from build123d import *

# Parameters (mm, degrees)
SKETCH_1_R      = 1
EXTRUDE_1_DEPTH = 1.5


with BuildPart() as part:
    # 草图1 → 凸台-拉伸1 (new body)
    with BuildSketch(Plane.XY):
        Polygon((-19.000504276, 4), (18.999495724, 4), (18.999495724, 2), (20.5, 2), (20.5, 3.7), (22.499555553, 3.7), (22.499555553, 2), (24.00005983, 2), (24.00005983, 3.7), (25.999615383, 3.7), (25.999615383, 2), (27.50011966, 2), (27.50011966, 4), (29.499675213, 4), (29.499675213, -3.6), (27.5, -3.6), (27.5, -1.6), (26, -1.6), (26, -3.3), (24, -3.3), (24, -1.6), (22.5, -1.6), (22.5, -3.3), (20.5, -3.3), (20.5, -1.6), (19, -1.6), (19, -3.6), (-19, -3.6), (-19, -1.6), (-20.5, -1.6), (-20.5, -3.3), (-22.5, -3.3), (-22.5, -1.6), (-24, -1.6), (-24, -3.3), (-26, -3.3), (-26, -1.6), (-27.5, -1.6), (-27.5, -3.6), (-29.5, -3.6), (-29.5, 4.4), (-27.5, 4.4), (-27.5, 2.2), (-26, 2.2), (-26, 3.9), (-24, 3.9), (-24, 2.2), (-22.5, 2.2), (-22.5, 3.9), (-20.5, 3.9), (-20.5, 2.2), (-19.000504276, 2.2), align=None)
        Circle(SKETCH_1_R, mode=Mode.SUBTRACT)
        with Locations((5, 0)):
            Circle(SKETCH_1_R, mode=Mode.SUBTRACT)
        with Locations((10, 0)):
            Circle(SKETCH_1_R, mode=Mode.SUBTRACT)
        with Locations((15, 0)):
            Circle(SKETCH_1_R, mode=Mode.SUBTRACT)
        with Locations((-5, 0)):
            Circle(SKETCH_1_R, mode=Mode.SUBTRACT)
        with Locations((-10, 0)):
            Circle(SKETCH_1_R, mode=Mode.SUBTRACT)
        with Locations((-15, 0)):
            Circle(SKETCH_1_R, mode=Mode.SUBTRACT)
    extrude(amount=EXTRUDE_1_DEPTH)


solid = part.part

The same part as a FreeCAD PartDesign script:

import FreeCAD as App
import Part
import Sketcher
from FreeCAD import Vector
Q = App.Units.Quantity

doc = App.newDocument("Part")
body = doc.addObject("PartDesign::Body", "Body")

sketch1 = doc.addObject("Sketcher::SketchObject", "Sketch")
body.addObject(sketch1)
sketch1.AttachmentSupport = (doc.XY_Plane, [""])
sketch1.MapMode = "FlatFace"
sketch1.addGeometry(Part.LineSegment(Vector(19, 4, 0), Vector(-19, 4, 0)), False)
sketch1.addGeometry(Part.LineSegment(Vector(-19, 4, 0), Vector(-19, 2.2, 0)), False)
sketch1.addGeometry(Part.LineSegment(Vector(-19, 2.2, 0), Vector(-20.5, 2.2, 0)), False)
sketch1.addGeometry(Part.LineSegment(Vector(-20.5, 2.2, 0), Vector(-20.5, 3.9, 0)), False)
sketch1.addGeometry(Part.LineSegment(Vector(-20.5, 3.9, 0), Vector(-22.5, 3.9, 0)), False)
sketch1.addGeometry(Part.LineSegment(Vector(-22.5, 3.9, 0), Vector(-22.5, 2.2, 0)), False)
sketch1.addGeometry(Part.LineSegment(Vector(-22.5, 2.2, 0), Vector(-24, 2.2, 0)), False)
sketch1.addGeometry(Part.LineSegment(Vector(-24, 2.2, 0), Vector(-24, 3.9, 0)), False)
sketch1.addGeometry(Part.LineSegment(Vector(-24, 3.9, 0), Vector(-26, 3.9, 0)), False)
sketch1.addGeometry(Part.LineSegment(Vector(-26, 3.9, 0), Vector(-26, 2.2, 0)), False)
sketch1.addGeometry(Part.LineSegment(Vector(-26, 2.2, 0), Vector(-27.5, 2.2, 0)), False)
sketch1.addGeometry(Part.LineSegment(Vector(-27.5, 2.2, 0), Vector(-27.5, 4.4, 0)), False)
sketch1.addGeometry(Part.LineSegment(Vector(-27.5, 4.4, 0), Vector(-29.5, 4.4, 0)), False)
sketch1.addGeometry(Part.LineSegment(Vector(-29.5, 4.4, 0), Vector(-29.5, -3.6, 0)), False)
sketch1.addGeometry(Part.LineSegment(Vector(-29.5, -3.6, 0), Vector(-27.5, -3.6, 0)), False)
sketch1.addGeometry(Part.LineSegment(Vector(-27.5, -3.6, 0), Vector(-27.5, -1.6, 0)), False)
sketch1.addGeometry(Part.LineSegment(Vector(-27.5, -1.6, 0), Vector(-26, -1.6, 0)), False)
sketch1.addGeometry(Part.LineSegment(Vector(-26, -1.6, 0), Vector(-26, -3.3, 0)), False)
sketch1.addGeometry(Part.LineSegment(Vector(-26, -3.3, 0), Vector(-24, -3.3, 0)), False)
sketch1.addGeometry(Part.LineSegment(Vector(-24, -3.3, 0), Vector(-24, -1.6, 0)), False)
sketch1.addGeometry(Part.LineSegment(Vector(-24, -1.6, 0), Vector(-22.5, -1.6, 0)), False)
sketch1.addGeometry(Part.LineSegment(Vector(-22.5, -1.6, 0), Vector(-22.5, -3.3, 0)), False)
sketch1.addGeometry(Part.LineSegment(Vector(-22.5, -3.3, 0), Vector(-20.5, -3.3, 0)), False)
sketch1.addGeometry(Part.LineSegment(Vector(-20.5, -3.3, 0), Vector(-20.5, -1.6, 0)), False)
sketch1.addGeometry(Part.LineSegment(Vector(-20.5, -1.6, 0), Vector(-19, -1.6, 0)), False)
sketch1.addGeometry(Part.LineSegment(Vector(-19, -1.6, 0), Vector(-19, -3.6, 0)), False)
sketch1.addGeometry(Part.LineSegment(Vector(-19, -3.6, 0), Vector(19, -3.6, 0)), False)
sketch1.addGeometry(Part.LineSegment(Vector(19, -3.6, 0), Vector(19, -1.6, 0)), False)
sketch1.addGeometry(Part.LineSegment(Vector(19, -1.6, 0), Vector(20.5, -1.6, 0)), False)
sketch1.addGeometry(Part.LineSegment(Vector(20.5, -1.6, 0), Vector(20.5, -3.3, 0)), False)
sketch1.addGeometry(Part.LineSegment(Vector(20.5, -3.3, 0), Vector(22.5, -3.3, 0)), False)
sketch1.addGeometry(Part.LineSegment(Vector(22.5, -3.3, 0), Vector(22.5, -1.6, 0)), False)
sketch1.addGeometry(Part.LineSegment(Vector(22.5, -1.6, 0), Vector(24, -1.6, 0)), False)
sketch1.addGeometry(Part.LineSegment(Vector(24, -1.6, 0), Vector(24, -3.3, 0)), False)
sketch1.addGeometry(Part.LineSegment(Vector(24, -3.3, 0), Vector(26, -3.3, 0)), False)
sketch1.addGeometry(Part.LineSegment(Vector(26, -3.3, 0), Vector(26, -1.6, 0)), False)
sketch1.addGeometry(Part.LineSegment(Vector(26, -1.6, 0), Vector(27.5, -1.6, 0)), False)
sketch1.addGeometry(Part.LineSegment(Vector(27.5, -1.6, 0), Vector(27.5, -3.6, 0)), False)
sketch1.addGeometry(Part.LineSegment(Vector(27.5, -3.6, 0), Vector(29.5, -3.6, 0)), False)
sketch1.addGeometry(Part.LineSegment(Vector(29.5, -3.6, 0), Vector(29.5, 4, 0)), False)
sketch1.addGeometry(Part.LineSegment(Vector(29.5, 4, 0), Vector(27.5, 4, 0)), False)
sketch1.addGeometry(Part.LineSegment(Vector(27.5, 4, 0), Vector(27.5, 2, 0)), False)
sketch1.addGeometry(Part.LineSegment(Vector(27.5, 2, 0), Vector(26, 2, 0)), False)
sketch1.addGeometry(Part.LineSegment(Vector(26, 2, 0), Vector(26, 3.7, 0)), False)
sketch1.addGeometry(Part.LineSegment(Vector(26, 3.7, 0), Vector(24, 3.7, 0)), False)
sketch1.addGeometry(Part.LineSegment(Vector(24, 3.7, 0), Vector(24, 2, 0)), False)
sketch1.addGeometry(Part.LineSegment(Vector(24, 2, 0), Vector(22.5, 2, 0)), False)
sketch1.addGeometry(Part.LineSegment(Vector(22.5, 2, 0), Vector(22.5, 3.7, 0)), False)
sketch1.addGeometry(Part.LineSegment(Vector(22.5, 3.7, 0), Vector(20.5, 3.7, 0)), False)
sketch1.addGeometry(Part.LineSegment(Vector(20.5, 3.7, 0), Vector(20.5, 2, 0)), False)
sketch1.addGeometry(Part.LineSegment(Vector(20.5, 2, 0), Vector(19, 2, 0)), False)
sketch1.addGeometry(Part.LineSegment(Vector(19, 2, 0), Vector(19, 4, 0)), False)
sketch1.addGeometry(Part.Circle(Vector(15, 0, 0), Vector(0, 0, 1), 1), False)
sketch1.addGeometry(Part.Circle(Vector(10, 0, 0), Vector(0, 0, 1), 1), False)
sketch1.addGeometry(Part.Circle(Vector(5, 0, 0), Vector(0, 0, 1), 1), False)
sketch1.addGeometry(Part.Circle(Vector(0, 0, 0), Vector(0, 0, 1), 1), False)
sketch1.addGeometry(Part.Circle(Vector(-5, 0, 0), Vector(0, 0, 1), 1), False)
sketch1.addGeometry(Part.Circle(Vector(-10, 0, 0), Vector(0, 0, 1), 1), False)
sketch1.addGeometry(Part.Circle(Vector(-15, 0, 0), Vector(0, 0, 1), 1), False)
sketch1.addConstraint(Sketcher.Constraint("Coincident", 0, 2, 1, 1))
sketch1.addConstraint(Sketcher.Constraint("Coincident", 1, 2, 2, 1))
sketch1.addConstraint(Sketcher.Constraint("Coincident", 2, 2, 3, 1))
sketch1.addConstraint(Sketcher.Constraint("Coincident", 3, 2, 4, 1))
sketch1.addConstraint(Sketcher.Constraint("Coincident", 4, 2, 5, 1))
sketch1.addConstraint(Sketcher.Constraint("Coincident", 5, 2, 6, 1))
sketch1.addConstraint(Sketcher.Constraint("Coincident", 6, 2, 7, 1))
sketch1.addConstraint(Sketcher.Constraint("Coincident", 7, 2, 8, 1))
sketch1.addConstraint(Sketcher.Constraint("Coincident", 8, 2, 9, 1))
sketch1.addConstraint(Sketcher.Constraint("Coincident", 9, 2, 10, 1))
sketch1.addConstraint(Sketcher.Constraint("Coincident", 10, 2, 11, 1))
sketch1.addConstraint(Sketcher.Constraint("Coincident", 11, 2, 12, 1))
sketch1.addConstraint(Sketcher.Constraint("Coincident", 12, 2, 13, 1))
sketch1.addConstraint(Sketcher.Constraint("Coincident", 13, 2, 14, 1))
sketch1.addConstraint(Sketcher.Constraint("Coincident", 14, 2, 15, 1))
sketch1.addConstraint(Sketcher.Constraint("Coincident", 15, 2, 16, 1))
sketch1.addConstraint(Sketcher.Constraint("Coincident", 16, 2, 17, 1))
sketch1.addConstraint(Sketcher.Constraint("Coincident", 17, 2, 18, 1))
sketch1.addConstraint(Sketcher.Constraint("Coincident", 18, 2, 19, 1))
sketch1.addConstraint(Sketcher.Constraint("Coincident", 19, 2, 20, 1))
sketch1.addConstraint(Sketcher.Constraint("Coincident", 20, 2, 21, 1))
sketch1.addConstraint(Sketcher.Constraint("Coincident", 21, 2, 22, 1))
sketch1.addConstraint(Sketcher.Constraint("Coincident", 22, 2, 23, 1))
sketch1.addConstraint(Sketcher.Constraint("Coincident", 23, 2, 24, 1))
sketch1.addConstraint(Sketcher.Constraint("Coincident", 24, 2, 25, 1))
sketch1.addConstraint(Sketcher.Constraint("Coincident", 25, 2, 26, 1))
sketch1.addConstraint(Sketcher.Constraint("Coincident", 26, 2, 27, 1))
sketch1.addConstraint(Sketcher.Constraint("Coincident", 27, 2, 28, 1))
sketch1.addConstraint(Sketcher.Constraint("Coincident", 28, 2, 29, 1))
sketch1.addConstraint(Sketcher.Constraint("Coincident", 29, 2, 30, 1))
sketch1.addConstraint(Sketcher.Constraint("Coincident", 30, 2, 31, 1))
sketch1.addConstraint(Sketcher.Constraint("Coincident", 31, 2, 32, 1))
sketch1.addConstraint(Sketcher.Constraint("Coincident", 32, 2, 33, 1))
sketch1.addConstraint(Sketcher.Constraint("Coincident", 33, 2, 34, 1))
sketch1.addConstraint(Sketcher.Constraint("Coincident", 34, 2, 35, 1))
sketch1.addConstraint(Sketcher.Constraint("Coincident", 35, 2, 36, 1))
sketch1.addConstraint(Sketcher.Constraint("Coincident", 36, 2, 37, 1))
sketch1.addConstraint(Sketcher.Constraint("Coincident", 37, 2, 38, 1))
sketch1.addConstraint(Sketcher.Constraint("Coincident", 38, 2, 39, 1))
sketch1.addConstraint(Sketcher.Constraint("Coincident", 39, 2, 40, 1))
sketch1.addConstraint(Sketcher.Constraint("Coincident", 40, 2, 41, 1))
sketch1.addConstraint(Sketcher.Constraint("Coincident", 41, 2, 42, 1))
sketch1.addConstraint(Sketcher.Constraint("Coincident", 42, 2, 43, 1))
sketch1.addConstraint(Sketcher.Constraint("Coincident", 43, 2, 44, 1))
sketch1.addConstraint(Sketcher.Constraint("Coincident", 44, 2, 45, 1))
sketch1.addConstraint(Sketcher.Constraint("Coincident", 45, 2, 46, 1))
sketch1.addConstraint(Sketcher.Constraint("Coincident", 46, 2, 47, 1))
sketch1.addConstraint(Sketcher.Constraint("Coincident", 47, 2, 48, 1))
sketch1.addConstraint(Sketcher.Constraint("Coincident", 48, 2, 49, 1))
sketch1.addConstraint(Sketcher.Constraint("Coincident", 49, 2, 50, 1))
sketch1.addConstraint(Sketcher.Constraint("Coincident", 50, 2, 51, 1))
sketch1.addConstraint(Sketcher.Constraint("Coincident", 51, 2, 0, 1))
sketch1.addConstraint(Sketcher.Constraint("Horizontal", 0))
sketch1.addConstraint(Sketcher.Constraint("Vertical", 1))
sketch1.addConstraint(Sketcher.Constraint("Horizontal", 2))
sketch1.addConstraint(Sketcher.Constraint("Vertical", 3))
sketch1.addConstraint(Sketcher.Constraint("Horizontal", 4))
sketch1.addConstraint(Sketcher.Constraint("Vertical", 5))
sketch1.addConstraint(Sketcher.Constraint("Horizontal", 6))
sketch1.addConstraint(Sketcher.Constraint("Vertical", 7))
sketch1.addConstraint(Sketcher.Constraint("Horizontal", 8))
sketch1.addConstraint(Sketcher.Constraint("Vertical", 9))
sketch1.addConstraint(Sketcher.Constraint("Horizontal", 10))
sketch1.addConstraint(Sketcher.Constraint("Vertical", 11))
sketch1.addConstraint(Sketcher.Constraint("Horizontal", 12))
sketch1.addConstraint(Sketcher.Constraint("Vertical", 13))
sketch1.addConstraint(Sketcher.Constraint("Horizontal", 14))
sketch1.addConstraint(Sketcher.Constraint("Vertical", 15))
sketch1.addConstraint(Sketcher.Constraint("Horizontal", 16))
sketch1.addConstraint(Sketcher.Constraint("Vertical", 17))
sketch1.addConstraint(Sketcher.Constraint("Horizontal", 18))
sketch1.addConstraint(Sketcher.Constraint("Vertical", 19))
sketch1.addConstraint(Sketcher.Constraint("Horizontal", 20))
sketch1.addConstraint(Sketcher.Constraint("Vertical", 21))
sketch1.addConstraint(Sketcher.Constraint("Horizontal", 22))
sketch1.addConstraint(Sketcher.Constraint("Vertical", 23))
sketch1.addConstraint(Sketcher.Constraint("Horizontal", 24))
sketch1.addConstraint(Sketcher.Constraint("Vertical", 25))
sketch1.addConstraint(Sketcher.Constraint("Horizontal", 26))
sketch1.addConstraint(Sketcher.Constraint("Vertical", 27))
sketch1.addConstraint(Sketcher.Constraint("Horizontal", 28))
sketch1.addConstraint(Sketcher.Constraint("Vertical", 29))
sketch1.addConstraint(Sketcher.Constraint("Horizontal", 30))
sketch1.addConstraint(Sketcher.Constraint("Vertical", 31))
sketch1.addConstraint(Sketcher.Constraint("Horizontal", 32))
sketch1.addConstraint(Sketcher.Constraint("Vertical", 33))
sketch1.addConstraint(Sketcher.Constraint("Horizontal", 34))
sketch1.addConstraint(Sketcher.Constraint("Vertical", 35))
sketch1.addConstraint(Sketcher.Constraint("Horizontal", 36))
sketch1.addConstraint(Sketcher.Constraint("Vertical", 37))
sketch1.addConstraint(Sketcher.Constraint("Horizontal", 38))
sketch1.addConstraint(Sketcher.Constraint("Vertical", 39))
sketch1.addConstraint(Sketcher.Constraint("Horizontal", 40))
sketch1.addConstraint(Sketcher.Constraint("Vertical", 41))
sketch1.addConstraint(Sketcher.Constraint("Horizontal", 42))
sketch1.addConstraint(Sketcher.Constraint("Vertical", 43))
sketch1.addConstraint(Sketcher.Constraint("Horizontal", 44))
sketch1.addConstraint(Sketcher.Constraint("Vertical", 45))
sketch1.addConstraint(Sketcher.Constraint("Horizontal", 46))
sketch1.addConstraint(Sketcher.Constraint("Vertical", 47))
sketch1.addConstraint(Sketcher.Constraint("Horizontal", 48))
sketch1.addConstraint(Sketcher.Constraint("Vertical", 49))
sketch1.addConstraint(Sketcher.Constraint("Horizontal", 50))
sketch1.addConstraint(Sketcher.Constraint("Vertical", 51))
sketch1.addConstraint(Sketcher.Constraint("Coincident", 55, 3, -1, 1))
sketch1.addConstraint(Sketcher.Constraint("Equal", 52, 53))
sketch1.addConstraint(Sketcher.Constraint("Equal", 53, 54))
sketch1.addConstraint(Sketcher.Constraint("Equal", 54, 55))
sketch1.addConstraint(Sketcher.Constraint("Equal", 55, 56))
sketch1.addConstraint(Sketcher.Constraint("Equal", 56, 57))
sketch1.addConstraint(Sketcher.Constraint("Equal", 57, 58))
sketch1.addConstraint(Sketcher.Constraint("Symmetric", 54, 3, 56, 3, -1, 1))
sketch1.addConstraint(Sketcher.Constraint("Symmetric", 53, 3, 57, 3, -1, 1))
sketch1.addConstraint(Sketcher.Constraint("Symmetric", 52, 3, 58, 3, -1, 1))
sketch1.addConstraint(Sketcher.Constraint("Symmetric", 24, 2, 27, 2, -2))
sketch1.addConstraint(Sketcher.Constraint("Symmetric", 22, 2, 29, 2, -2))
sketch1.addConstraint(Sketcher.Constraint("Symmetric", 20, 2, 31, 2, -2))
sketch1.addConstraint(Sketcher.Constraint("Symmetric", 18, 2, 33, 2, -2))
sketch1.addConstraint(Sketcher.Constraint("Symmetric", 16, 2, 35, 2, -2))
sketch1.addConstraint(Sketcher.Constraint("Symmetric", 14, 2, 37, 2, -2))
sketch1.addConstraint(Sketcher.Constraint("PointOnObject", 52, 3, -1))
sketch1.addConstraint(Sketcher.Constraint("PointOnObject", 53, 3, -1))
sketch1.addConstraint(Sketcher.Constraint("PointOnObject", 54, 3, -1))
sketch1.addConstraint(Sketcher.Constraint("Horizontal", 2, 2, 5, 2))
sketch1.addConstraint(Sketcher.Constraint("Horizontal", 4, 2, 7, 2))
sketch1.addConstraint(Sketcher.Constraint("Horizontal", 6, 2, 9, 2))
sketch1.addConstraint(Sketcher.Constraint("Horizontal", 16, 2, 19, 2))
sketch1.addConstraint(Sketcher.Constraint("Horizontal", 18, 2, 21, 2))
sketch1.addConstraint(Sketcher.Constraint("Horizontal", 20, 2, 23, 2))
sketch1.addConstraint(Sketcher.Constraint("Horizontal", 14, 2, 25, 2))
sketch1.addConstraint(Sketcher.Constraint("Horizontal", 0, 2, 39, 2))
sketch1.addConstraint(Sketcher.Constraint("Horizontal", 42, 2, 45, 2))
sketch1.addConstraint(Sketcher.Constraint("Horizontal", 44, 2, 47, 2))
sketch1.addConstraint(Sketcher.Constraint("Horizontal", 46, 2, 49, 2))
sketch1.addConstraint(Sketcher.Constraint("Vertical", 11, 2, 14, 2))
sketch1.addConstraint(Sketcher.Constraint("Vertical", 9, 2, 16, 2))
sketch1.addConstraint(Sketcher.Constraint("Vertical", 7, 2, 18, 2))
sketch1.addConstraint(Sketcher.Constraint("Vertical", 5, 2, 20, 2))
sketch1.addConstraint(Sketcher.Constraint("Vertical", 3, 2, 22, 2))
sketch1.addConstraint(Sketcher.Constraint("Vertical", 29, 2, 48, 2))
sketch1.addConstraint(Sketcher.Constraint("Equal", 4, 8))
sketch1.addConstraint(Sketcher.Constraint("Equal", 6, 10))
sketch1.addConstraint(Sketcher.Constraint("Equal", 8, 12))
sketch1.addConstraint(Sketcher.Constraint("Equal", 20, 24))
sketch1.addConstraint(Sketcher.Constraint("Equal", 0, 26))
sketch1.addConstraint(Sketcher.Constraint("Equal", 40, 44))
sketch1.addConstraint(Sketcher.Constraint("Equal", 42, 46))
sketch1.addConstraint(Sketcher.Constraint("Equal", 44, 48))
sketch1.addConstraint(Sketcher.Constraint("Equal", 46, 50))
sketch1.addConstraint(Sketcher.Constraint("Equal", 34, 15))
sketch1.addConstraint(Sketcher.Constraint("Equal", 9, 17))
sketch1.addConstraint(Sketcher.Constraint("Equal", 37, 41))
sketch1.addConstraint(Sketcher.Constraint("Equal", 35, 43))
sketch1.addConstraint(Sketcher.Constraint("Diameter", 52, Q("2 mm")))
sketch1.addConstraint(Sketcher.Constraint("DistanceX", 0, 2, 0, 1, Q("38 mm")))
sketch1.addConstraint(Sketcher.Constraint("DistanceX", 4, 2, 4, 1, Q("2 mm")))
sketch1.addConstraint(Sketcher.Constraint("DistanceY", 13, 2, 13, 1, Q("8 mm")))
sketch1.addConstraint(Sketcher.Constraint("DistanceX", 6, 2, 6, 1, Q("1.5 mm")))
sketch1.addConstraint(Sketcher.Constraint("DistanceY", 1, 2, 1, 1, Q("1.8 mm")))
sketch1.addConstraint(Sketcher.Constraint("DistanceY", 3, 1, 3, 2, Q("1.7 mm")))
sketch1.addConstraint(Sketcher.Constraint("DistanceY", 11, 1, 11, 2, Q("2.2 mm")))
sketch1.addConstraint(Sketcher.Constraint("DistanceX", -1, 1, 52, 3, Q("15 mm")))
sketch1.addConstraint(Sketcher.Constraint("DistanceX", -1, 1, 53, 3, Q("10 mm")))
sketch1.addConstraint(Sketcher.Constraint("DistanceX", -1, 1, 54, 3, Q("5 mm")))
sketch1.addConstraint(Sketcher.Constraint("DistanceY", -1, 1, 0, 2, Q("4 mm")))
sketch1.addConstraint(Sketcher.Constraint("DistanceX", 2, 2, 2, 1, Q("1.499496 mm")))
sketch1.addConstraint(Sketcher.Constraint("DistanceX", 38, 1, 38, 2, Q("1.999675 mm")))
pad1 = doc.addObject("PartDesign::Pad", "Pad")
body.addObject(pad1)
pad1.Profile = sketch1
pad1.Length = 1.5

doc.recompute()
